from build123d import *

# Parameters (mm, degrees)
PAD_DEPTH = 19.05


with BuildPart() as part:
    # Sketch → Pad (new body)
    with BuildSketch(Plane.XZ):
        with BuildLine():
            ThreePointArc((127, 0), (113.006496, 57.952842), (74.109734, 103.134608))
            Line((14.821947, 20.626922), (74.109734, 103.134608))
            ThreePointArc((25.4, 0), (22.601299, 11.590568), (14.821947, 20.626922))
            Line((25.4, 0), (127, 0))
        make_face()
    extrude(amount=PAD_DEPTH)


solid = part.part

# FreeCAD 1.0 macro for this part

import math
import FreeCAD as App
import Part
import Sketcher
Q = App.Units.Quantity

doc = App.newDocument("Part")
params = doc.addObject("Spreadsheet::Sheet", "Params")
for row, (alias, value) in enumerate([
    ("sketch1_radius", "5 in"),
    ("sketch1_radius2", "1.0000002 in"),
    ("pad1_length", "0.75 in"),
], start=1):
    params.set(f"A{row}", alias)
    params.set(f"B{row}", "=" + value)
    params.setAlias(f"B{row}", alias)

body = doc.addObject("PartDesign::Body", "Body")

sketch1 = body.newObject("Sketcher::SketchObject", "Sketch")
sketch1.AttachmentSupport = (doc.getObject("XZ_Plane"), [""])
sketch1.MapMode = "FlatFace"
sketch1.addGeometry([
    Part.ArcOfCircle(Part.Circle(App.Vector(0, 0, 0), App.Vector(0, 0, 1), 127), math.radians(0), math.radians(54)),
    Part.LineSegment(App.Vector(74, 103, 0), App.Vector(15, 21, 0)),
    Part.ArcOfCircle(Part.Circle(App.Vector(0, 0, 0), App.Vector(0, 0, 1), 25), math.radians(0), math.radians(54)),
    Part.LineSegment(App.Vector(25, 0, 0), App.Vector(127, 0, 0)),
], False)
sketch1.addConstraint([
    Sketcher.Constraint("Coincident", 0, 2, 1, 1),
    Sketcher.Constraint("Coincident", 1, 2, 2, 2),
    Sketcher.Constraint("Coincident", 2, 1, 3, 1),
    Sketcher.Constraint("Coincident", 3, 2, 0, 1),
    Sketcher.Constraint("Horizontal", 3),
    Sketcher.Constraint("Coincident", 0, 3, -1, 1),
    Sketcher.Constraint("Coincident", 2, 3, -1, 1),
    Sketcher.Constraint("PointOnObject", 2, 1, -1),
    Sketcher.Constraint("Radius", 0, Q("5 in")),
    Sketcher.Constraint("Radius", 2, Q("1.0000002 in")),
    Sketcher.Constraint("Angle", 1, Q("-125.7 deg")),
    Sketcher.Constraint("DistanceX", 2, 3, 0, 2, Q("74.109739 mm")),
])
sketch1.setExpression("Constraints[8]", "Params.sketch1_radius")
sketch1.setExpression("Constraints[9]", "Params.sketch1_radius2")
pad1 = body.newObject("PartDesign::Pad", "Pad")
pad1.Profile = sketch1
pad1.setExpression("Length", "Params.pad1_length")

doc.recompute()
